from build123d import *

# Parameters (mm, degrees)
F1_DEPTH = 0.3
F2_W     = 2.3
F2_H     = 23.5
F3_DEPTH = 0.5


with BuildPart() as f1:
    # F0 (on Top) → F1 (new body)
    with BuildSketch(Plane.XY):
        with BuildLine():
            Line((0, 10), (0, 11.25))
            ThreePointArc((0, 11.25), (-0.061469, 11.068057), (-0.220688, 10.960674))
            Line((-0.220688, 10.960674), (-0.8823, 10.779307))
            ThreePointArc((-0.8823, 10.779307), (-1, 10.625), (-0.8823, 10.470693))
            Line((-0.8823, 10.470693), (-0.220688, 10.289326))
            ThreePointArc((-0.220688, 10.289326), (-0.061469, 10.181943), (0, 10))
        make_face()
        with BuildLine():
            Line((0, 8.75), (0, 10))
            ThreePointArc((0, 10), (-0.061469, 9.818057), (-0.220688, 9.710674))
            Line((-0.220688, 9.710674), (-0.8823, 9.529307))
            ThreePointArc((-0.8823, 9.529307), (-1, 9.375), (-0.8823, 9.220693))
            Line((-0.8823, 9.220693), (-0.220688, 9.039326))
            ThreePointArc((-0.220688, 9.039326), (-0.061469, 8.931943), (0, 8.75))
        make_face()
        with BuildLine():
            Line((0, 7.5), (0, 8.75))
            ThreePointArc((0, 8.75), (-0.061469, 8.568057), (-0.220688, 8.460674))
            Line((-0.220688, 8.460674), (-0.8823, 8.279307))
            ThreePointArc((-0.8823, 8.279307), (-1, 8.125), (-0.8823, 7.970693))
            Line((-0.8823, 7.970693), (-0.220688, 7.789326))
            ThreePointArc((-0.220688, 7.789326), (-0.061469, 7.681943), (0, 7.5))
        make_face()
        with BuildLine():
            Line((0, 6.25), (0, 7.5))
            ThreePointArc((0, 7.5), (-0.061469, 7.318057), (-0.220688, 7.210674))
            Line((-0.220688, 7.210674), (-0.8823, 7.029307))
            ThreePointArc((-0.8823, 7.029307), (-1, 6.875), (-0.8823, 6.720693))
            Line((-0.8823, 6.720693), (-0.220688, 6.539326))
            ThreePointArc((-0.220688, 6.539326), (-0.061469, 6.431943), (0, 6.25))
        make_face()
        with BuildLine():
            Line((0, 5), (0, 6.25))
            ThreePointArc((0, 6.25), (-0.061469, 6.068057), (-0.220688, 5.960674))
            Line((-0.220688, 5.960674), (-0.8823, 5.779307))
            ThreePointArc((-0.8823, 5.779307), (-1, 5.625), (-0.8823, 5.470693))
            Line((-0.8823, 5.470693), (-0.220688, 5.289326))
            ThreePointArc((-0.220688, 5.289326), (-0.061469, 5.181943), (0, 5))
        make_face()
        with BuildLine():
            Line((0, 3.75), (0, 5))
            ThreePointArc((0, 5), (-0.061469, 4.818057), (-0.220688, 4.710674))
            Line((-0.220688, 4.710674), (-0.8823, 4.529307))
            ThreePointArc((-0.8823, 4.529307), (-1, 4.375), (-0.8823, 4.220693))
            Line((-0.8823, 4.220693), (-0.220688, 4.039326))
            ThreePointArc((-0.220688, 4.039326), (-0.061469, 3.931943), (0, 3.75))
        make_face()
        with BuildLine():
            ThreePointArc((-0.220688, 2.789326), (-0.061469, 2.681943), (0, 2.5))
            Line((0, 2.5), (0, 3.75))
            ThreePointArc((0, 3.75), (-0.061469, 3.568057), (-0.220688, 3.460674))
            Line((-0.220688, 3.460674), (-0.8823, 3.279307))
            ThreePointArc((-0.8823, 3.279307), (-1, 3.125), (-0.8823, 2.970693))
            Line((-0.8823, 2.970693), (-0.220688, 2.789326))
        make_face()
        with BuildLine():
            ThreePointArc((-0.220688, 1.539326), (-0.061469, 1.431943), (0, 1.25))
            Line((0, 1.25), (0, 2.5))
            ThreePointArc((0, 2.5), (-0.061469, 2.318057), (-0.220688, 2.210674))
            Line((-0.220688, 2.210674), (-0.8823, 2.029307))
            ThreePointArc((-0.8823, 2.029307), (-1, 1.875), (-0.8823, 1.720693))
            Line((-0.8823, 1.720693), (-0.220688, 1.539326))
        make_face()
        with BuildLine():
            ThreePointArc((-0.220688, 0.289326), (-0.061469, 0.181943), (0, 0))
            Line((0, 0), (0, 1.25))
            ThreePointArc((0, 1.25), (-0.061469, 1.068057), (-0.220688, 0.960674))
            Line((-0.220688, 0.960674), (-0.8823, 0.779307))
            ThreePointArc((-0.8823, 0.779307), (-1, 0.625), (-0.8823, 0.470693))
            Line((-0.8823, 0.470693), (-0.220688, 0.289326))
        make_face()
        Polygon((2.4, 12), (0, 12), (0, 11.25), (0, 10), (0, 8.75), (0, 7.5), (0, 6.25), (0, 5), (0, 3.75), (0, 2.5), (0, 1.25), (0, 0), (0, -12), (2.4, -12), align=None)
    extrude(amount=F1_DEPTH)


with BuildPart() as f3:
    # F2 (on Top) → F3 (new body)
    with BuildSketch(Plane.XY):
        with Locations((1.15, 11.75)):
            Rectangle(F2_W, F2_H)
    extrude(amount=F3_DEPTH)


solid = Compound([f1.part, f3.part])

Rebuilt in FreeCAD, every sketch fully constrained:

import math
import FreeCAD as App
import Part
import Sketcher
from FreeCAD import Vector

doc = App.newDocument("Part")
body = doc.addObject("PartDesign::Body", "Body")

sketch1 = body.newObject("Sketcher::SketchObject", "Sketch")
sketch1.AttachmentSupport = (doc.getObject("XY_Plane"), [""])
sketch1.MapMode = "FlatFace"
sketch1.addGeometry(Part.ArcOfCircle(Part.Circle(Vector(-0.299998, 11.249998, 0), Vector(0, 0, 1), 0.299998), math.radians(-74.6706), math.radians(0.000295)), False)
sketch1.addGeometry(Part.LineSegment(Vector(-0.220688, 10.960674, 0), Vector(-0.8823, 10.779307, 0)), False)
sketch1.addGeometry(Part.ArcOfCircle(Part.Circle(Vector(-0.84, 10.625, 0), Vector(0, 0, 1), 0.16), math.radians(105.329749), math.radians(254.670251)), False)
sketch1.addGeometry(Part.LineSegment(Vector(-0.8823, 10.470693, 0), Vector(-0.220688, 10.289326, 0)), False)
sketch1.addGeometry(Part.ArcOfCircle(Part.Circle(Vector(-0.299998, 10.000002, 0), Vector(0, 0, 1), 0.299998), math.radians(-0.000295), math.radians(74.6706)), False)
sketch1.addGeometry(Part.ArcOfCircle(Part.Circle(Vector(-0.299998, 9.999998, 0), Vector(0, 0, 1), 0.299998), math.radians(-74.6706), math.radians(0.000295)), False)
sketch1.addGeometry(Part.LineSegment(Vector(-0.220688, 9.710674, 0), Vector(-0.8823, 9.529307, 0)), False)
sketch1.addGeometry(Part.ArcOfCircle(Part.Circle(Vector(-0.84, 9.375, 0), Vector(0, 0, 1), 0.16), math.radians(105.329749), math.radians(254.670251)), False)
sketch1.addGeometry(Part.LineSegment(Vector(-0.8823, 9.220693, 0), Vector(-0.220688, 9.039326, 0)), False)
sketch1.addGeometry(Part.ArcOfCircle(Part.Circle(Vector(-0.299998, 8.750002, 0), Vector(0, 0, 1), 0.299998), math.radians(-0.000295), math.radians(74.6706)), False)
sketch1.addGeometry(Part.ArcOfCircle(Part.Circle(Vector(-0.299998, 8.749998, 0), Vector(0, 0, 1), 0.299998), math.radians(-74.6706), math.radians(0.000295)), False)
sketch1.addGeometry(Part.LineSegment(Vector(-0.220688, 8.460674, 0), Vector(-0.8823, 8.279307, 0)), False)
sketch1.addGeometry(Part.ArcOfCircle(Part.Circle(Vector(-0.84, 8.125, 0), Vector(0, 0, 1), 0.16), math.radians(105.329749), math.radians(254.670251)), False)
sketch1.addGeometry(Part.LineSegment(Vector(-0.8823, 7.970693, 0), Vector(-0.220688, 7.789326, 0)), False)
sketch1.addGeometry(Part.ArcOfCircle(Part.Circle(Vector(-0.299998, 7.500002, 0), Vector(0, 0, 1), 0.299998), math.radians(-0.000295), math.radians(74.6706)), False)
sketch1.addGeometry(Part.ArcOfCircle(Part.Circle(Vector(-0.299998, 7.499998, 0), Vector(0, 0, 1), 0.299998), math.radians(-74.6706), math.radians(0.000295)), False)
sketch1.addGeometry(Part.LineSegment(Vector(-0.220688, 7.210674, 0), Vector(-0.8823, 7.029307, 0)), False)
sketch1.addGeometry(Part.ArcOfCircle(Part.Circle(Vector(-0.84, 6.875, 0), Vector(0, 0, 1), 0.16), math.radians(105.329749), math.radians(254.670251)), False)
sketch1.addGeometry(Part.LineSegment(Vector(-0.8823, 6.720693, 0), Vector(-0.220688, 6.539326, 0)), False)
sketch1.addGeometry(Part.ArcOfCircle(Part.Circle(Vector(-0.299998, 6.250002, 0), Vector(0, 0, 1), 0.299998), math.radians(-0.000295), math.radians(74.6706)), False)
sketch1.addGeometry(Part.ArcOfCircle(Part.Circle(Vector(-0.299998, 6.249998, 0), Vector(0, 0, 1), 0.299998), math.radians(-74.6706), math.radians(0.000295)), False)
sketch1.addGeometry(Part.LineSegment(Vector(-0.220688, 5.960674, 0), Vector(-0.8823, 5.779307, 0)), False)
sketch1.addGeometry(Part.ArcOfCircle(Part.Circle(Vector(-0.84, 5.625, 0), Vector(0, 0, 1), 0.16), math.radians(105.329749), math.radians(254.670251)), False)
sketch1.addGeometry(Part.LineSegment(Vector(-0.8823, 5.470693, 0), Vector(-0.220688, 5.289326, 0)), False)
sketch1.addGeometry(Part.ArcOfCircle(Part.Circle(Vector(-0.299998, 5.000002, 0), Vector(0, 0, 1), 0.299998), math.radians(-0.000295), math.radians(74.6706)), False)
sketch1.addGeometry(Part.ArcOfCircle(Part.Circle(Vector(-0.299998, 4.999998, 0), Vector(0, 0, 1), 0.299998), math.radians(-74.6706), math.radians(0.000295)), False)
sketch1.addGeometry(Part.LineSegment(Vector(-0.220688, 4.710674, 0), Vector(-0.8823, 4.529307, 0)), False)
sketch1.addGeometry(Part.ArcOfCircle(Part.Circle(Vector(-0.84, 4.375, 0), Vector(0, 0, 1), 0.16), math.radians(105.329749), math.radians(254.670251)), False)
sketch1.addGeometry(Part.LineSegment(Vector(-0.8823, 4.220693, 0), Vector(-0.220688, 4.039326, 0)), False)
sketch1.addGeometry(Part.ArcOfCircle(Part.Circle(Vector(-0.299998, 3.750002, 0), Vector(0, 0, 1), 0.299998), math.radians(-0.000295), math.radians(74.6706)), False)
sketch1.addGeometry(Part.ArcOfCircle(Part.Circle(Vector(-0.299998, 3.749998, 0), Vector(0, 0, 1), 0.299998), math.radians(-74.6706), math.radians(0.000295)), False)
sketch1.addGeometry(Part.LineSegment(Vector(-0.220688, 3.460674, 0), Vector(-0.8823, 3.279307, 0)), False)
sketch1.addGeometry(Part.ArcOfCircle(Part.Circle(Vector(-0.84, 3.125, 0), Vector(0, 0, 1), 0.16), math.radians(105.329749), math.radians(254.670251)), False)
sketch1.addGeometry(Part.LineSegment(Vector(-0.8823, 2.970693, 0), Vector(-0.220688, 2.789326, 0)), False)
sketch1.addGeometry(Part.ArcOfCircle(Part.Circle(Vector(-0.299998, 2.500002, 0), Vector(0, 0, 1), 0.299998), math.radians(-0.000295), math.radians(74.6706)), False)
sketch1.addGeometry(Part.ArcOfCircle(Part.Circle(Vector(-0.299998, 2.499998, 0), Vector(0, 0, 1), 0.299998), math.radians(-74.6706), math.radians(0.000295)), False)
sketch1.addGeometry(Part.LineSegment(Vector(-0.220688, 2.210674, 0), Vector(-0.8823, 2.029307, 0)), False)
sketch1.addGeometry(Part.ArcOfCircle(Part.Circle(Vector(-0.84, 1.875, 0), Vector(0, 0, 1), 0.16), math.radians(105.329749), math.radians(254.670251)), False)
sketch1.addGeometry(Part.LineSegment(Vector(-0.8823, 1.720693, 0), Vector(-0.220688, 1.539326, 0)), False)
sketch1.addGeometry(Part.ArcOfCircle(Part.Circle(Vector(-0.299998, 1.250002, 0), Vector(0, 0, 1), 0.299998), math.radians(-0.000295), math.radians(74.6706)), False)
sketch1.addGeometry(Part.ArcOfCircle(Part.Circle(Vector(-0.299998, 1.249998, 0), Vector(0, 0, 1), 0.299998), math.radians(-74.6706), math.radians(0.000295)), False)
sketch1.addGeometry(Part.LineSegment(Vector(-0.220688, 0.960674, 0), Vector(-0.8823, 0.779307, 0)), False)
sketch1.addGeometry(Part.ArcOfCircle(Part.Circle(Vector(-0.84, 0.625, 0), Vector(0, 0, 1), 0.16), math.radians(105.329749), math.radians(254.670251)), False)
sketch1.addGeometry(Part.LineSegment(Vector(-0.8823, 0.470693, 0), Vector(-0.220688, 0.289326, 0)), False)
sketch1.addGeometry(Part.ArcOfCircle(Part.Circle(Vector(-0.299998, 0.000002, 0), Vector(0, 0, 1), 0.299998), math.radians(-0.000295), math.radians(74.6706)), False)
sketch1.addGeometry(Part.LineSegment(Vector(0, 0, 0), Vector(0, -12, 0)), False)
sketch1.addGeometry(Part.LineSegment(Vector(0, -12, 0), Vector(2.4, -12, 0)), False)
sketch1.addGeometry(Part.LineSegment(Vector(2.4, -12, 0), Vector(2.4, 12, 0)), False)
sketch1.addGeometry(Part.LineSegment(Vector(2.4, 12, 0), Vector(0, 12, 0)), False)
sketch1.addGeometry(Part.LineSegment(Vector(0, 12, 0), Vector(0, 11.25, 0)), False)
sketch1.addConstraint(Sketcher.Constraint("Coincident", 0, 1, 1, 1))
sketch1.addConstraint(Sketcher.Constraint("Tangent", 1, 2, 2, 1))
sketch1.addConstraint(Sketcher.Constraint("Tangent", 2, 2, 3, 1))
sketch1.addConstraint(Sketcher.Constraint("Coincident", 3, 2, 4, 2))
sketch1.addConstraint(Sketcher.Constraint("Coincident", 4, 1, 5, 2))
sketch1.addConstraint(Sketcher.Constraint("Coincident", 5, 1, 6, 1))
sketch1.addConstraint(Sketcher.Constraint("Tangent", 6, 2, 7, 1))
sketch1.addConstraint(Sketcher.Constraint("Tangent", 7, 2, 8, 1))
sketch1.addConstraint(Sketcher.Constraint("Coincident", 8, 2, 9, 2))
sketch1.addConstraint(Sketcher.Constraint("Coincident", 9, 1, 10, 2))
sketch1.addConstraint(Sketcher.Constraint("Coincident", 10, 1, 11, 1))
sketch1.addConstraint(Sketcher.Constraint("Tangent", 11, 2, 12, 1))
sketch1.addConstraint(Sketcher.Constraint("Tangent", 12, 2, 13, 1))
sketch1.addConstraint(Sketcher.Constraint("Coincident", 13, 2, 14, 2))
sketch1.addConstraint(Sketcher.Constraint("Coincident", 14, 1, 15, 2))
sketch1.addConstraint(Sketcher.Constraint("Coincident", 15, 1, 16, 1))
sketch1.addConstraint(Sketcher.Constraint("Tangent", 16, 2, 17, 1))
sketch1.addConstraint(Sketcher.Constraint("Tangent", 17, 2, 18, 1))
sketch1.addConstraint(Sketcher.Constraint("Coincident", 18, 2, 19, 2))
sketch1.addConstraint(Sketcher.Constraint("Coincident", 19, 1, 20, 2))
sketch1.addConstraint(Sketcher.Constraint("Coincident", 20, 1, 21, 1))
sketch1.addConstraint(Sketcher.Constraint("Tangent", 21, 2, 22, 1))
sketch1.addConstraint(Sketcher.Constraint("Tangent", 22, 2, 23, 1))
sketch1.addConstraint(Sketcher.Constraint("Coincident", 23, 2, 24, 2))
sketch1.addConstraint(Sketcher.Constraint("Coincident", 24, 1, 25, 2))
sketch1.addConstraint(Sketcher.Constraint("Coincident", 25, 1, 26, 1))
sketch1.addConstraint(Sketcher.Constraint("Tangent", 26, 2, 27, 1))
sketch1.addConstraint(Sketcher.Constraint("Tangent", 27, 2, 28, 1))
sketch1.addConstraint(Sketcher.Constraint("Coincident", 28, 2, 29, 2))
sketch1.addConstraint(Sketcher.Constraint("Coincident", 29, 1, 30, 2))
sketch1.addConstraint(Sketcher.Constraint("Coincident", 30, 1, 31, 1))
sketch1.addConstraint(Sketcher.Constraint("Tangent", 31, 2, 32, 1))
sketch1.addConstraint(Sketcher.Constraint("Tangent", 32, 2, 33, 1))
sketch1.addConstraint(Sketcher.Constraint("Coincident", 33, 2, 34, 2))
sketch1.addConstraint(Sketcher.Constraint("Coincident", 34, 1, 35, 2))
sketch1.addConstraint(Sketcher.Constraint("Coincident", 35, 1, 36, 1))
sketch1.addConstraint(Sketcher.Constraint("Tangent", 36, 2, 37, 1))
sketch1.addConstraint(Sketcher.Constraint("Tangent", 37, 2, 38, 1))
sketch1.addConstraint(Sketcher.Constraint("Coincident", 38, 2, 39, 2))
sketch1.addConstraint(Sketcher.Constraint("Coincident", 39, 1, 40, 2))
sketch1.addConstraint(Sketcher.Constraint("Coincident", 40, 1, 41, 1))
sketch1.addConstraint(Sketcher.Constraint("Tangent", 41, 2, 42, 1))
sketch1.addConstraint(Sketcher.Constraint("Tangent", 42, 2, 43, 1))
sketch1.addConstraint(Sketcher.Constraint("Coincident", 43, 2, 44, 2))
sketch1.addConstraint(Sketcher.Constraint("Coincident", 44, 1, 45, 1))
sketch1.addConstraint(Sketcher.Constraint("Coincident", 45, 2, 46, 1))
sketch1.addConstraint(Sketcher.Constraint("Coincident", 46, 2, 47, 1))
sketch1.addConstraint(Sketcher.Constraint("Coincident", 47, 2, 48, 1))
sketch1.addConstraint(Sketcher.Constraint("Coincident", 48, 2, 49, 1))
sketch1.addConstraint(Sketcher.Constraint("Coincident", 49, 2, 0, 2))
sketch1.addConstraint(Sketcher.Constraint("Vertical", 45))
sketch1.addConstraint(Sketcher.Constraint("Horizontal", 46))
sketch1.addConstraint(Sketcher.Constraint("Vertical", 47))
sketch1.addConstraint(Sketcher.Constraint("Horizontal", 48))
sketch1.addConstraint(Sketcher.Constraint("Vertical", 49))
sketch1.addConstraint(Sketcher.Constraint("Coincident", 44, 1, -1, 1))
sketch1.addConstraint(Sketcher.Constraint("Coincident", 5, 3, 4, 3))
sketch1.addConstraint(Sketcher.Constraint("Coincident", 10, 3, 9, 3))
sketch1.addConstraint(Sketcher.Constraint("Coincident", 15, 3, 14, 3))
sketch1.addConstraint(Sketcher.Constraint("Coincident", 20, 3, 19, 3))
sketch1.addConstraint(Sketcher.Constraint("Coincident", 25, 3, 24, 3))
sketch1.addConstraint(Sketcher.Constraint("Coincident", 30, 3, 29, 3))
sketch1.addConstraint(Sketcher.Constraint("Coincident", 35, 3, 34, 3))
sketch1.addConstraint(Sketcher.Constraint("Coincident", 40, 3, 39, 3))
sketch1.addConstraint(Sketcher.Constraint("Equal", 0, 4))
sketch1.addConstraint(Sketcher.Constraint("Equal", 2, 7))
sketch1.addConstraint(Sketcher.Constraint("Equal", 5, 9))
sketch1.addConstraint(Sketcher.Constraint("Equal", 7, 12))
sketch1.addConstraint(Sketcher.Constraint("Equal", 10, 14))
sketch1.addConstraint(Sketcher.Constraint("Equal", 12, 17))
sketch1.addConstraint(Sketcher.Constraint("Equal", 15, 19))
sketch1.addConstraint(Sketcher.Constraint("Equal", 17, 22))
sketch1.addConstraint(Sketcher.Constraint("Equal", 20, 24))
sketch1.addConstraint(Sketcher.Constraint("Equal", 22, 27))
sketch1.addConstraint(Sketcher.Constraint("Equal", 25, 29))
sketch1.addConstraint(Sketcher.Constraint("Equal", 27, 32))
sketch1.addConstraint(Sketcher.Constraint("Equal", 30, 34))
sketch1.addConstraint(Sketcher.Constraint("Equal", 32, 37))
sketch1.addConstraint(Sketcher.Constraint("Equal", 35, 39))
sketch1.addConstraint(Sketcher.Constraint("Equal", 37, 42))
sketch1.addConstraint(Sketcher.Constraint("Equal", 40, 44))
sketch1.addConstraint(Sketcher.Constraint("Symmetric", 45, 2, 48, 2, -1, 1))
sketch1.addConstraint(Sketcher.Constraint("PointOnObject", 44, 3, -1))
sketch1.addConstraint(Sketcher.Constraint("PointOnObject", 4, 1, -2))
sketch1.addConstraint(Sketcher.Constraint("PointOnObject", 9, 1, -2))
sketch1.addConstraint(Sketcher.Constraint("PointOnObject", 14, 1, -2))
sketch1.addConstraint(Sketcher.Constraint("PointOnObject", 19, 1, -2))
sketch1.addConstraint(Sketcher.Constraint("PointOnObject", 24, 1, -2))
sketch1.addConstraint(Sketcher.Constraint("PointOnObject", 29, 1, -2))
sketch1.addConstraint(Sketcher.Constraint("PointOnObject", 34, 1, -2))
sketch1.addConstraint(Sketcher.Constraint("PointOnObject", 39, 1, -2))
sketch1.addConstraint(Sketcher.Constraint("Parallel", 1, 6))
sketch1.addConstraint(Sketcher.Constraint("Parallel", 3, 8))
sketch1.addConstraint(Sketcher.Constraint("Parallel", 6, 11))
sketch1.addConstraint(Sketcher.Constraint("Parallel", 8, 13))
sketch1.addConstraint(Sketcher.Constraint("Parallel", 11, 16))
sketch1.addConstraint(Sketcher.Constraint("Parallel", 13, 18))
sketch1.addConstraint(Sketcher.Constraint("Parallel", 16, 21))
sketch1.addConstraint(Sketcher.Constraint("Parallel", 18, 23))
sketch1.addConstraint(Sketcher.Constraint("Parallel", 21, 26))
sketch1.addConstraint(Sketcher.Constraint("Parallel", 23, 28))
sketch1.addConstraint(Sketcher.Constraint("Parallel", 26, 31))
sketch1.addConstraint(Sketcher.Constraint("Parallel", 28, 33))
sketch1.addConstraint(Sketcher.Constraint("Parallel", 31, 36))
sketch1.addConstraint(Sketcher.Constraint("Parallel", 33, 38))
sketch1.addConstraint(Sketcher.Constraint("Parallel", 36, 41))
sketch1.addConstraint(Sketcher.Constraint("Parallel", 38, 43))
sketch1.addConstraint(Sketcher.Constraint("Horizontal", 5, 3, 4, 1))
sketch1.addConstraint(Sketcher.Constraint("Horizontal", 10, 3, 9, 1))
sketch1.addConstraint(Sketcher.Constraint("Horizontal", 15, 3, 14, 1))
sketch1.addConstraint(Sketcher.Constraint("Horizontal", 20, 3, 19, 1))
sketch1.addConstraint(Sketcher.Constraint("Horizontal", 25, 3, 24, 1))
sketch1.addConstraint(Sketcher.Constraint("Horizontal", 30, 3, 29, 1))
sketch1.addConstraint(Sketcher.Constraint("Horizontal", 35, 3, 34, 1))
sketch1.addConstraint(Sketcher.Constraint("Horizontal", 40, 3, 39, 1))
sketch1.addConstraint(Sketcher.Constraint("Horizontal", 0, 3, 49, 2))
sketch1.addConstraint(Sketcher.Constraint("Vertical", 2, 3, 7, 3))
sketch1.addConstraint(Sketcher.Constraint("Vertical", 7, 3, 12, 3))
sketch1.addConstraint(Sketcher.Constraint("Vertical", 12, 3, 17, 3))
sketch1.addConstraint(Sketcher.Constraint("Vertical", 17, 3, 22, 3))
sketch1.addConstraint(Sketcher.Constraint("Vertical", 22, 3, 27, 3))
sketch1.addConstraint(Sketcher.Constraint("Vertical", 27, 3, 32, 3))
sketch1.addConstraint(Sketcher.Constraint("Vertical", 32, 3, 37, 3))
sketch1.addConstraint(Sketcher.Constraint("Vertical", 37, 3, 42, 3))
sketch1.addConstraint(Sketcher.Constraint("Vertical", 1, 2, 2, 2))
sketch1.addConstraint(Sketcher.Constraint("Vertical", 0, 1, 3, 2))
sketch1.addConstraint(Sketcher.Constraint("Vertical", 3, 2, 5, 1))
sketch1.addConstraint(Sketcher.Constraint("Vertical", 5, 1, 8, 2))
sketch1.addConstraint(Sketcher.Constraint("Vertical", 8, 2, 10, 1))
sketch1.addConstraint(Sketcher.Constraint("Vertical", 10, 1, 13, 2))
sketch1.addConstraint(Sketcher.Constraint("Vertical", 13, 2, 15, 1))
sketch1.addConstraint(Sketcher.Constraint("Vertical", 15, 1, 18, 2))
sketch1.addConstraint(Sketcher.Constraint("Vertical", 18, 2, 20, 1))
sketch1.addConstraint(Sketcher.Constraint("Vertical", 20, 1, 23, 2))
sketch1.addConstraint(Sketcher.Constraint("Vertical", 23, 2, 25, 1))
sketch1.addConstraint(Sketcher.Constraint("Vertical", 25, 1, 28, 2))
sketch1.addConstraint(Sketcher.Constraint("Vertical", 28, 2, 30, 1))
sketch1.addConstraint(Sketcher.Constraint("Vertical", 30, 1, 33, 2))
sketch1.addConstraint(Sketcher.Constraint("Vertical", 33, 2, 35, 1))
sketch1.addConstraint(Sketcher.Constraint("Vertical", 35, 1, 38, 2))
sketch1.addConstraint(Sketcher.Constraint("Vertical", 38, 2, 40, 1))
sketch1.addConstraint(Sketcher.Constraint("Vertical", 40, 1, 43, 2))
sketch1.addConstraint(Sketcher.Constraint("DistanceY", 45, 2, 45, 1, 12.0))
sketch1.addConstraint(Sketcher.Constraint("Radius", 2, 0.16))
sketch1.addConstraint(Sketcher.Constraint("DistanceX", 46, 1, 46, 2, 2.4))
sketch1.addConstraint(Sketcher.Constraint("DistanceY", -1, 1, 4, 3, 10.000002))
sketch1.addConstraint(Sketcher.Constraint("DistanceX", 2, 3, -1, 1, 0.84))
sketch1.addConstraint(Sketcher.Constraint("Radius", 0, 0.299998))
sketch1.addConstraint(Sketcher.Constraint("Distance", 1, 0.686021))
pad1 = body.newObject("PartDesign::Pad", "Pad")
pad1.Profile = sketch1
pad1.Length = 0.3
body2 = doc.addObject("PartDesign::Body", "Body001")

sketch2 = body2.newObject("Sketcher::SketchObject", "Sketch001")
sketch2.AttachmentSupport = (doc.getObject("XY_Plane001"), [""])
sketch2.MapMode = "FlatFace"
sketch2.addGeometry(Part.LineSegment(Vector(0, 23.5, 0), Vector(0, 0, 0)), False)
sketch2.addGeometry(Part.LineSegment(Vector(0, 0, 0), Vector(2.3, 0, 0)), False)
sketch2.addGeometry(Part.LineSegment(Vector(2.3, 0, 0), Vector(2.3, 23.5, 0)), False)
sketch2.addGeometry(Part.LineSegment(Vector(2.3, 23.5, 0), Vector(0, 23.5, 0)), False)
sketch2.addConstraint(Sketcher.Constraint("Coincident", 0, 2, 1, 1))
sketch2.addConstraint(Sketcher.Constraint("Coincident", 1, 2, 2, 1))
sketch2.addConstraint(Sketcher.Constraint("Coincident", 2, 2, 3, 1))
sketch2.addConstraint(Sketcher.Constraint("Coincident", 3, 2, 0, 1))
sketch2.addConstraint(Sketcher.Constraint("Vertical", 0))
sketch2.addConstraint(Sketcher.Constraint("Horizontal", 1))
sketch2.addConstraint(Sketcher.Constraint("Vertical", 2))
sketch2.addConstraint(Sketcher.Constraint("Horizontal", 3))
sketch2.addConstraint(Sketcher.Constraint("Coincident", 0, 2, -1, 1))
sketch2.addConstraint(Sketcher.Constraint("DistanceX", 1, 1, 1, 2, 2.3))
sketch2.addConstraint(Sketcher.Constraint("DistanceY", 0, 2, 0, 1, 23.5))
pad2 = body2.newObject("PartDesign::Pad", "Pad001")
pad2.Profile = sketch2
pad2.Length = 0.5

doc.recompute()
